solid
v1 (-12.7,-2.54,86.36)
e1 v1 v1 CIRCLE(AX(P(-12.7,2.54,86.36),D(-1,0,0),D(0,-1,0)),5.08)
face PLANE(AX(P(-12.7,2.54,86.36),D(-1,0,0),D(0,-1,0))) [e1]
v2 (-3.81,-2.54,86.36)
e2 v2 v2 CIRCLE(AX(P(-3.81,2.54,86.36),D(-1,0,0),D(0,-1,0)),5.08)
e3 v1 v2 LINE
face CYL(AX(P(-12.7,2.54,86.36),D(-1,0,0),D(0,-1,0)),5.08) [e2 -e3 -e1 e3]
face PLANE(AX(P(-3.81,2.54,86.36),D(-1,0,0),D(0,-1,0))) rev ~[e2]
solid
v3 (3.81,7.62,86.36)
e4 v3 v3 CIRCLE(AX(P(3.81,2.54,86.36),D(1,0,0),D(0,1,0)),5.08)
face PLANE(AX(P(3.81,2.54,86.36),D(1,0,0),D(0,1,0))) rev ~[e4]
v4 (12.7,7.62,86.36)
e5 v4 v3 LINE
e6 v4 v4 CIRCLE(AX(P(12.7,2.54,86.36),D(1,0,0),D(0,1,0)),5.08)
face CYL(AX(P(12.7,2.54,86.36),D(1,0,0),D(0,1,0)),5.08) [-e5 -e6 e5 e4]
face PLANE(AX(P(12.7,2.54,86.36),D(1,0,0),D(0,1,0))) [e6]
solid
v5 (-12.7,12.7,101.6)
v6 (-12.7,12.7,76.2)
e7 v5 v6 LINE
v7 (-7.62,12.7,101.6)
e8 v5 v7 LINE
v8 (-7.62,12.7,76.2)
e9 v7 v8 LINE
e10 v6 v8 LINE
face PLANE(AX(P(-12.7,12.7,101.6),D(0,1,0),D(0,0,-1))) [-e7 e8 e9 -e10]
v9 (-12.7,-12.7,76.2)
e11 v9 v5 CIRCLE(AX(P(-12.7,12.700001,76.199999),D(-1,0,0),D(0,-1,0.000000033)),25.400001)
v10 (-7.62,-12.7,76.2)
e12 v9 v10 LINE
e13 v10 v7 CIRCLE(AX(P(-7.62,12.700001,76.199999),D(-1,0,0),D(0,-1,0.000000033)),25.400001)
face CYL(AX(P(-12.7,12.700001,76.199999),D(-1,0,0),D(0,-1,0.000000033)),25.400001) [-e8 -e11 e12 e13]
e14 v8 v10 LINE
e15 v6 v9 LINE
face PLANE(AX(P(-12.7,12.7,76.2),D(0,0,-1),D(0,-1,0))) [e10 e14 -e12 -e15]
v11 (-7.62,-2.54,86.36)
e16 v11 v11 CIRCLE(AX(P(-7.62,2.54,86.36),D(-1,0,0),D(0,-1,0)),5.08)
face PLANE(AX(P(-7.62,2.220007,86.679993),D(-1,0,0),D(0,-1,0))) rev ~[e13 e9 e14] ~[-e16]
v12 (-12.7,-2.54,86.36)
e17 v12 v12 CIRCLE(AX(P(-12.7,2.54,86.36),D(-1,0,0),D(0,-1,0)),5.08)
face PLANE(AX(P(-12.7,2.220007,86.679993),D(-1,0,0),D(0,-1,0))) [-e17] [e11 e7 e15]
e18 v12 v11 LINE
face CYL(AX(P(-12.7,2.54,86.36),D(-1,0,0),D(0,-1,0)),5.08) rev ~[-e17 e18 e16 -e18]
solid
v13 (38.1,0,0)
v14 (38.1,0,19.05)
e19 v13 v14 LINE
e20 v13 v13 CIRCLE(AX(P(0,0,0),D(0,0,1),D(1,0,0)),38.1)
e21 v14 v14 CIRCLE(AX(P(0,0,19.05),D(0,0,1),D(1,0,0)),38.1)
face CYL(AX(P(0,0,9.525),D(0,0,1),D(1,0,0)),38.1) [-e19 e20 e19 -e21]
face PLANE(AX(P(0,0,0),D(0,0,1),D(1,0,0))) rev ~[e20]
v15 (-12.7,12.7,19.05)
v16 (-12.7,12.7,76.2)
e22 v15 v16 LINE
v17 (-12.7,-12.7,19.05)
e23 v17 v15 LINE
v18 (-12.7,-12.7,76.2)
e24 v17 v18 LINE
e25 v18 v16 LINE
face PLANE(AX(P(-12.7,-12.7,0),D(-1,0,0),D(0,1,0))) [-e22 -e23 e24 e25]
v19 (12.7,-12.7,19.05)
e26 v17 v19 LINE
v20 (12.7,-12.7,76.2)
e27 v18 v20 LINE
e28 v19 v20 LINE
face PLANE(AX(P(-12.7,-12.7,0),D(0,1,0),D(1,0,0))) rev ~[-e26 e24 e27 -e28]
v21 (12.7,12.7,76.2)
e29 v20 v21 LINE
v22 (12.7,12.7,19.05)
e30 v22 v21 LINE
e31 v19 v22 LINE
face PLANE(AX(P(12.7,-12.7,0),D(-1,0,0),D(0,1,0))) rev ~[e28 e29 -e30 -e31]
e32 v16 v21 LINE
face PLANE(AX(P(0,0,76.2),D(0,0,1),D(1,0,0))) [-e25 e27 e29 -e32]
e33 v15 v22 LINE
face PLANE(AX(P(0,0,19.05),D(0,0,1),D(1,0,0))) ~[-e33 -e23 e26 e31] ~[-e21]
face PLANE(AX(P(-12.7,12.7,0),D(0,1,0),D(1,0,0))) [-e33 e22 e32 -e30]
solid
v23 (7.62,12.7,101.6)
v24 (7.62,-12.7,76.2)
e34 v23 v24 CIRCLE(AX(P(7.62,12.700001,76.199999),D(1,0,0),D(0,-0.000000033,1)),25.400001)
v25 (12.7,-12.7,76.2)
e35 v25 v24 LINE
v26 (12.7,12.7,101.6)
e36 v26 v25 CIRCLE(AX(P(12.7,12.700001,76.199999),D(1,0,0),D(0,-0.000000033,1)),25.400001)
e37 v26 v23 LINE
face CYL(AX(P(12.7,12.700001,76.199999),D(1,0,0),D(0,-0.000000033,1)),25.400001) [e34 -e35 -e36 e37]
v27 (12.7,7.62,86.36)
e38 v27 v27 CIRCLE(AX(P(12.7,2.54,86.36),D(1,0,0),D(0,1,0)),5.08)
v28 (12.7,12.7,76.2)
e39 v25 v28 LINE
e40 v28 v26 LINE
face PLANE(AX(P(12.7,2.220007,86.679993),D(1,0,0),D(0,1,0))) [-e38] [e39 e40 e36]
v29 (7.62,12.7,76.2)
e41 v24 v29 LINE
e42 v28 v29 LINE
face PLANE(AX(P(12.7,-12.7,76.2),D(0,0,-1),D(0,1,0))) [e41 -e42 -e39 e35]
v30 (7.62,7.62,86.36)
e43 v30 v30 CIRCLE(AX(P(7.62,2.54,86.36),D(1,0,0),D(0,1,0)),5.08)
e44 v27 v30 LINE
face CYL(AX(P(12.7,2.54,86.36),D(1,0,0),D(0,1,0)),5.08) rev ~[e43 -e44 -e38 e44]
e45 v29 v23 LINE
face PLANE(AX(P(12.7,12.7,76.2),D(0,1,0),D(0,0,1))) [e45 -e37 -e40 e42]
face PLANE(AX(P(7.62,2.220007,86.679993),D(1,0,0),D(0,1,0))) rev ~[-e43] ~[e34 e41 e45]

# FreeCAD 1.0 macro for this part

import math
import FreeCAD as App
import Part
import Sketcher
Q = App.Units.Quantity

doc = App.newDocument("Part")
body = doc.addObject("PartDesign::Body", "Body")

# Sketch on XZ plane
sketch1 = body.newObject("Sketcher::SketchObject", "Sketch")
sketch1.AttachmentSupport = (doc.getObject("XZ_Plane"), [""])
sketch1.MapMode = "FlatFace"
sketch1.addGeometry([
    Part.LineSegment(App.Vector(0, 19, 0), App.Vector(0, 0, 0)),
    Part.LineSegment(App.Vector(0, 0, 0), App.Vector(38, 0, 0)),
    Part.LineSegment(App.Vector(38, 0, 0), App.Vector(38, 19, 0)),
    Part.LineSegment(App.Vector(38, 19, 0), App.Vector(0, 19, 0)),
], False)
sketch1.addConstraint([
    Sketcher.Constraint("Coincident", 0, 2, 1, 1),
    Sketcher.Constraint("Coincident", 1, 2, 2, 1),
    Sketcher.Constraint("Coincident", 2, 2, 3, 1),
    Sketcher.Constraint("Coincident", 3, 2, 0, 1),
    Sketcher.Constraint("Vertical", 0),
    Sketcher.Constraint("Horizontal", 1),
    Sketcher.Constraint("Vertical", 2),
    Sketcher.Constraint("Horizontal", 3),
    Sketcher.Constraint("Coincident", 0, 2, -1, 1),
    Sketcher.Constraint("DistanceX", 1, 1, 1, 2, Q("1.5 in")),
    Sketcher.Constraint("DistanceY", 0, 2, 0, 1, Q("0.75 in")),
])
revolution = body.newObject("PartDesign::Revolution", "Revolution")
revolution.Profile = sketch1
revolution.ReferenceAxis = (sketch1, ["V_Axis"])
revolution.Angle = 360

# Sketch on XY plane
sketch2 = body.newObject("Sketcher::SketchObject", "Sketch001")
sketch2.AttachmentSupport = (doc.getObject("XY_Plane"), [""])
sketch2.MapMode = "FlatFace"
sketch2.addGeometry([
    Part.LineSegment(App.Vector(-13, 13, 0), App.Vector(-13, -13, 0)),
    Part.LineSegment(App.Vector(-13, -13, 0), App.Vector(13, -13, 0)),
    Part.LineSegment(App.Vector(13, -13, 0), App.Vector(13, 13, 0)),
    Part.LineSegment(App.Vector(13, 13, 0), App.Vector(-13, 13, 0)),
], False)
sketch2.addConstraint([
    Sketcher.Constraint("Coincident", 0, 2, 1, 1),
    Sketcher.Constraint("Coincident", 1, 2, 2, 1),
    Sketcher.Constraint("Coincident", 2, 2, 3, 1),
    Sketcher.Constraint("Coincident", 3, 2, 0, 1),
    Sketcher.Constraint("Vertical", 0),
    Sketcher.Constraint("Horizontal", 1),
    Sketcher.Constraint("Vertical", 2),
    Sketcher.Constraint("Horizontal", 3),
    Sketcher.Constraint("Symmetric", 0, 2, 2, 2, -1, 1),
    Sketcher.Constraint("Equal", 3, 0),
    Sketcher.Constraint("DistanceX", 1, 1, 1, 2, Q("1 in")),
])
pad1 = body.newObject("PartDesign::Pad", "Pad")
pad1.Profile = sketch2
pad1.Length = Q("3 in")
body2 = doc.addObject("PartDesign::Body", "Body001")

# Sketch on YZ plane
sketch3 = body2.newObject("Sketcher::SketchObject", "Sketch002")
sketch3.AttachmentSupport = (doc.getObject("YZ_Plane001"), [""])
sketch3.MapMode = "FlatFace"
sketch3.AttachmentOffset = App.Placement(App.Vector(0, 0, -0.5 * 25.4), App.Rotation())
sketch3.addGeometry([
    Part.LineSegment(App.Vector(13, 76, 0), App.Vector(-13, 76, 0)),
    Part.ArcOfCircle(Part.Circle(App.Vector(13, 76, 0), App.Vector(0, 0, 1), 25), math.radians(90), math.radians(180)),
    Part.LineSegment(App.Vector(13, 102, 0), App.Vector(13, 76, 0)),
    Part.Circle(App.Vector(3, 86, 0), App.Vector(0, 0, 1), 5),
], False)
sketch3.addConstraint([
    Sketcher.Constraint("Coincident", 0, 2, 1, 2),
    Sketcher.Constraint("Coincident", 1, 1, 2, 1),
    Sketcher.Constraint("Coincident", 2, 2, 0, 1),
    Sketcher.Constraint("Horizontal", 0),
    Sketcher.Constraint("Vertical", 2),
    Sketcher.Constraint("Coincident", 2, 2, 1, 3),
    Sketcher.Constraint("Radius", 1, Q("1 in")),
    Sketcher.Constraint("Diameter", 3, Q("0.4 in")),
    Sketcher.Constraint("DistanceY", -1, 1, 1, 3, Q("3 in")),
    Sketcher.Constraint("DistanceX", -1, 1, 1, 3, Q("0.5 in")),
    Sketcher.Constraint("DistanceX", -1, 1, 3, 3, Q("0.1 in")),
    Sketcher.Constraint("DistanceY", -1, 1, 3, 3, Q("3.4 in")),
])
pad2 = body2.newObject("PartDesign::Pad", "Pad001")
pad2.Profile = sketch3
pad2.Length = Q("0.2 in")
body3 = doc.addObject("PartDesign::Body", "Body002")

# Sketch on YZ plane
sketch4 = body3.newObject("Sketcher::SketchObject", "Sketch003")
sketch4.AttachmentSupport = (doc.getObject("YZ_Plane002"), [""])
sketch4.MapMode = "FlatFace"
sketch4.AttachmentOffset = App.Placement(App.Vector(0, 0, 0.5 * 25.4), App.Rotation())
sketch4.addGeometry([
    Part.LineSegment(App.Vector(-13, 76, 0), App.Vector(13, 76, 0)),
    Part.LineSegment(App.Vector(13, 76, 0), App.Vector(13, 102, 0)),
    Part.ArcOfCircle(Part.Circle(App.Vector(13, 76, 0), App.Vector(0, 0, 1), 25), math.radians(90), math.radians(180)),
    Part.Circle(App.Vector(3, 86, 0), App.Vector(0, 0, 1), 5),
], False)
sketch4.addConstraint([
    Sketcher.Constraint("Coincident", 0, 2, 1, 1),
    Sketcher.Constraint("Coincident", 1, 2, 2, 1),
    Sketcher.Constraint("Coincident", 2, 2, 0, 1),
    Sketcher.Constraint("Horizontal", 0),
    Sketcher.Constraint("Vertical", 1),
    Sketcher.Constraint("Coincident", 0, 2, 2, 3),
    Sketcher.Constraint("Radius", 2, Q("1 in")),
    Sketcher.Constraint("Diameter", 3, Q("0.4 in")),
    Sketcher.Constraint("DistanceY", -1, 1, 2, 3, Q("3 in")),
    Sketcher.Constraint("DistanceX", -1, 1, 2, 3, Q("0.5 in")),
    Sketcher.Constraint("DistanceX", -1, 1, 3, 3, Q("0.1 in")),
    Sketcher.Constraint("DistanceY", -1, 1, 3, 3, Q("3.4 in")),
])
pad3 = body3.newObject("PartDesign::Pad", "Pad002")
pad3.Profile = sketch4
pad3.Length = Q("0.2 in")
pad3.Reversed = True
body4 = doc.addObject("PartDesign::Body", "Body003")

# Sketch on YZ plane
sketch5 = body4.newObject("Sketcher::SketchObject", "Sketch004")
sketch5.AttachmentSupport = (doc.getObject("YZ_Plane003"), [""])
sketch5.MapMode = "FlatFace"
sketch5.AttachmentOffset = App.Placement(App.Vector(0, 0, 0.5 * 25.4), App.Rotation())
sketch5.addGeometry(Part.Circle(App.Vector(3, 86, 0), App.Vector(0, 0, 1), 5), False)
sketch5.addConstraint([
    Sketcher.Constraint("Diameter", 0, Q("0.4 in")),
    Sketcher.Constraint("DistanceX", -1, 1, 0, 3, Q("0.1 in")),
    Sketcher.Constraint("DistanceY", -1, 1, 0, 3, Q("3.4 in")),
])
pad4 = body4.newObject("PartDesign::Pad", "Pad003")
pad4.Profile = sketch5
pad4.Length = Q("0.35 in")
pad4.Reversed = True
body5 = doc.addObject("PartDesign::Body", "Body004")

# Sketch on YZ plane
sketch6 = body5.newObject("Sketcher::SketchObject", "Sketch005")
sketch6.AttachmentSupport = (doc.getObject("YZ_Plane004"), [""])
sketch6.MapMode = "FlatFace"
sketch6.AttachmentOffset = App.Placement(App.Vector(0, 0, -0.5 * 25.4), App.Rotation())
sketch6.addGeometry(Part.Circle(App.Vector(3, 86, 0), App.Vector(0, 0, 1), 5), False)
sketch6.addConstraint([
    Sketcher.Constraint("Diameter", 0, Q("0.4 in")),
    Sketcher.Constraint("DistanceX", -1, 1, 0, 3, Q("0.1 in")),
    Sketcher.Constraint("DistanceY", -1, 1, 0, 3, Q("3.4 in")),
])
pad5 = body5.newObject("PartDesign::Pad", "Pad004")
pad5.Profile = sketch6
pad5.Length = Q("0.35 in")

doc.recompute()
